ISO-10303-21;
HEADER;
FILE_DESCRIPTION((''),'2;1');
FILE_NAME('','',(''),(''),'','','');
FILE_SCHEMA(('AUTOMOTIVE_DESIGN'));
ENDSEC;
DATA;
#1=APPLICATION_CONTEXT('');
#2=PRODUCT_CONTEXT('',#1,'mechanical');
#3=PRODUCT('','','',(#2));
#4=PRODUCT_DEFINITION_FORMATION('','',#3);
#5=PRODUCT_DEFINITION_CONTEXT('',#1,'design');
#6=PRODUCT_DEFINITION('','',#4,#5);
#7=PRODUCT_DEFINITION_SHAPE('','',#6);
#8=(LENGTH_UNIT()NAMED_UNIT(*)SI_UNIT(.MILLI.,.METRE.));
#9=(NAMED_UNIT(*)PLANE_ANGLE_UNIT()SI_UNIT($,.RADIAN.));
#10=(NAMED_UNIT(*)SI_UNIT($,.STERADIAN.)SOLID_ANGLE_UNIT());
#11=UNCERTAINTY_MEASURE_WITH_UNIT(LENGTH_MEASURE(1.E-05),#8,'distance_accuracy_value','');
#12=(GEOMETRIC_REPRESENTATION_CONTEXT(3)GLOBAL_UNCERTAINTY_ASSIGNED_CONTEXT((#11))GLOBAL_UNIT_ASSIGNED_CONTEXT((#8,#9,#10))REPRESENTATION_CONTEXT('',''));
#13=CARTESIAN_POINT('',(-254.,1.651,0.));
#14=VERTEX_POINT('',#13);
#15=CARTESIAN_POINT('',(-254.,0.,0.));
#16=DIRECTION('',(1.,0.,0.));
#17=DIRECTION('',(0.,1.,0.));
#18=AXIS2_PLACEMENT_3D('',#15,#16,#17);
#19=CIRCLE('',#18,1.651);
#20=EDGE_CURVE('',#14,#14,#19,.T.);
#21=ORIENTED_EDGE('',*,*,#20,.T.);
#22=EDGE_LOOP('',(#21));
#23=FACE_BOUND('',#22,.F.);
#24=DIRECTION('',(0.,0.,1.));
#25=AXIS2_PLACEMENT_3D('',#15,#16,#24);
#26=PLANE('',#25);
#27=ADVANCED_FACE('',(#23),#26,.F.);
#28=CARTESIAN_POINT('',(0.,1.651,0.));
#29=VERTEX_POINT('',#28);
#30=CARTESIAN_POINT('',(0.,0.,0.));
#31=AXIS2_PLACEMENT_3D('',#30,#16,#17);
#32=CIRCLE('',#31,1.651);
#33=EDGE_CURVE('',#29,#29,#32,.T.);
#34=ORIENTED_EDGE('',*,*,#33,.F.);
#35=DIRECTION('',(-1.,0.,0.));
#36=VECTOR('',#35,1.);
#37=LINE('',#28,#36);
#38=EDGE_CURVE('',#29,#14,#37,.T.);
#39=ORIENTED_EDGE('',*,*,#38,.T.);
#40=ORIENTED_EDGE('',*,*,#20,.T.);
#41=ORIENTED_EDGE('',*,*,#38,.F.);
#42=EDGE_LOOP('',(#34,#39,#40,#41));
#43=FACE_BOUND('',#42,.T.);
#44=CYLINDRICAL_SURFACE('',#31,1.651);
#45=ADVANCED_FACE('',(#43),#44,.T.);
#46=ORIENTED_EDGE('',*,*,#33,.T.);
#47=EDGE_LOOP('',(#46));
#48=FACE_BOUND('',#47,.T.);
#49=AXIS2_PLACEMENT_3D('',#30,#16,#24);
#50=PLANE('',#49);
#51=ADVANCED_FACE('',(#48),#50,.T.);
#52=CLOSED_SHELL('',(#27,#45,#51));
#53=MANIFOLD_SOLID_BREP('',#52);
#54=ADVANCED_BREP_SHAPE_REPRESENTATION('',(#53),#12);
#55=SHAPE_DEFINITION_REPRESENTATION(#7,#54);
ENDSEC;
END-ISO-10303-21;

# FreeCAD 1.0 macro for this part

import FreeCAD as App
import Part
import Sketcher

V = App.Vector
Q = App.Units.Quantity

doc = App.newDocument("Part")
body = doc.addObject("PartDesign::Body", "Body")

# Sketch on YZ plane
sketch1 = body.newObject("Sketcher::SketchObject", "Sketch")
sketch1.AttachmentSupport = (doc.getObject("YZ_Plane"), [""])
sketch1.MapMode = "FlatFace"
sketch1.addGeometry(Part.Circle(V(0, 0, 0), V(0, 0, 1), 1.7), False)
sketch1.addConstraint([
    Sketcher.Constraint("Coincident", 0, 3, -1, 1),
    Sketcher.Constraint("Diameter", 0, Q("0.13 in")),
])
pad1 = body.newObject("PartDesign::Pad", "Pad")
pad1.Profile = sketch1
pad1.Length = Q("10 in")
pad1.Reversed = True

doc.recompute()
